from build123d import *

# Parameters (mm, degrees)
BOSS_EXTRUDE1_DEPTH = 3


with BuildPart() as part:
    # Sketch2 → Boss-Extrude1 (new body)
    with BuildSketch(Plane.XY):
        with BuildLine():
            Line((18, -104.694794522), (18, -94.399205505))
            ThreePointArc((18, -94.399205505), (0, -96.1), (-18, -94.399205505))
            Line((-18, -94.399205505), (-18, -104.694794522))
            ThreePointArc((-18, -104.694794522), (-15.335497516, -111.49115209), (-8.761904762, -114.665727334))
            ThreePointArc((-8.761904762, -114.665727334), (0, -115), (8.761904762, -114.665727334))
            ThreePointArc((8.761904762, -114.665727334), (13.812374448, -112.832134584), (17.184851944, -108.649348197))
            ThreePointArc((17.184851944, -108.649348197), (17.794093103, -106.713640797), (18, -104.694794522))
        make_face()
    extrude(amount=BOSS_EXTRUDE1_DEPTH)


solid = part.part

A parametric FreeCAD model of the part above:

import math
import FreeCAD as App
import Part
import Sketcher

V = App.Vector
Q = App.Units.Quantity

doc = App.newDocument("Part")
body = doc.addObject("PartDesign::Body", "Body")

sketch1 = doc.addObject("Sketcher::SketchObject", "Sketch")
body.addObject(sketch1)
sketch1.AttachmentSupport = (doc.XY_Plane, [""])
sketch1.MapMode = "FlatFace"
sketch1.addGeometry([
    Part.LineSegment(V(18, -104.694795, 0), V(18, -94.399206, 0)),
    Part.ArcOfCircle(Part.Circle(V(0, 0, 0), V(0, 0, 1), 96.1), math.radians(-100.795542), math.radians(-79.204458)),
    Part.LineSegment(V(-18, -94.399206, 0), V(-18, -104.694795, 0)),
    Part.ArcOfCircle(Part.Circle(V(-8, -104.694795, 0), V(0, 0, 1), 10), math.radians(180), math.radians(265.630373)),
    Part.ArcOfCircle(Part.Circle(V(0, 0, 0), V(0, 0, 1), 115), math.radians(-94.369627), math.radians(-85.630373)),
    Part.ArcOfCircle(Part.Circle(V(8, -104.694795, 0), V(0, 0, 1), 10), math.radians(-85.630373), math.radians(-23.294377)),
    Part.ArcOfCircle(Part.Circle(V(8, -104.694795, 0), V(0, 0, 1), 10), math.radians(-23.294377), math.radians(0)),
], False)
sketch1.addConstraint([
    Sketcher.Constraint("Coincident", 0, 2, 1, 2),
    Sketcher.Constraint("Coincident", 1, 1, 2, 1),
    Sketcher.Constraint("Tangent", 2, 2, 3, 1),
    Sketcher.Constraint("Tangent", 3, 2, 4, 1),
    Sketcher.Constraint("Tangent", 4, 2, 5, 1),
    Sketcher.Constraint("Tangent", 5, 2, 6, 1),
    Sketcher.Constraint("Tangent", 6, 2, 0, 1),
    Sketcher.Constraint("Vertical", 0),
    Sketcher.Constraint("Vertical", 2),
    Sketcher.Constraint("Coincident", 1, 3, -1, 1),
    Sketcher.Constraint("Coincident", 4, 3, -1, 1),
    Sketcher.Constraint("Equal", 3, 5),
    Sketcher.Constraint("Equal", 5, 6),
    Sketcher.Constraint("Horizontal", 3, 3, 5, 3),
    Sketcher.Constraint("Radius", 3, Q("10 mm")),
    Sketcher.Constraint("Radius", 4, Q("115 mm")),
    Sketcher.Constraint("Radius", 1, Q("96.1 mm")),
    Sketcher.Constraint("DistanceX", 3, 3, -1, 1, Q("8 mm")),
    Sketcher.Constraint("DistanceX", -1, 1, 5, 2, Q("17.184852 mm")),
])
pad1 = doc.addObject("PartDesign::Pad", "Pad")
body.addObject(pad1)
pad1.Profile = sketch1
pad1.Length = 3

doc.recompute()
